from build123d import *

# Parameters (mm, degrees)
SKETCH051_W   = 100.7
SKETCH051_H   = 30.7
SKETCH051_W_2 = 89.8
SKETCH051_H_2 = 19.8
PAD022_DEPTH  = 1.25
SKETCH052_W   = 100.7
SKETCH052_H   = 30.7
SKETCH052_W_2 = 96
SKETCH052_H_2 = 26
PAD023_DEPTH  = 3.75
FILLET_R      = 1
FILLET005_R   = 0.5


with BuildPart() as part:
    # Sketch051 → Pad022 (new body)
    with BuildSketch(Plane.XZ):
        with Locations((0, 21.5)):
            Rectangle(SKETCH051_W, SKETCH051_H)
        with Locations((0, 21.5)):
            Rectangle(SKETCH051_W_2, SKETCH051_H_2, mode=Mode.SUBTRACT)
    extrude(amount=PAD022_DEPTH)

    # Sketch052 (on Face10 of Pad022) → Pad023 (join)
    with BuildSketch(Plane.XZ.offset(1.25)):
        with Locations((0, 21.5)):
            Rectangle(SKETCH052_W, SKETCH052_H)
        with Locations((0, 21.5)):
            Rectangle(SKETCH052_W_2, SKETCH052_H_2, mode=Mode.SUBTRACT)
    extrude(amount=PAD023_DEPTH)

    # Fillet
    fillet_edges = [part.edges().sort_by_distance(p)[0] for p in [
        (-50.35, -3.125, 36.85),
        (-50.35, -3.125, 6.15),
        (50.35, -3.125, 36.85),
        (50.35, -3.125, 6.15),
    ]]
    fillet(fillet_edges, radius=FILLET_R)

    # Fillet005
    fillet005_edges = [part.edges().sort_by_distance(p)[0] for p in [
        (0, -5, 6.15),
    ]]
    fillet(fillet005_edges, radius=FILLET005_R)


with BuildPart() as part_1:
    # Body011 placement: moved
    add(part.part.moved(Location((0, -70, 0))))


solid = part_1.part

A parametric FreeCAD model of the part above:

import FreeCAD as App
import Part
import Sketcher
from FreeCAD import Vector


def edges_at(feature, points):
    """Names of the edges that pass closest to the given points."""
    edges = feature.Shape.Edges
    near = lambda p: min(range(len(edges)), key=lambda i: edges[i].distToShape(Part.Vertex(*p))[0])
    return sorted({f"Edge{near(p) + 1}" for p in points})

doc = App.newDocument("Part")
params = doc.addObject("Spreadsheet::Sheet", "Params")
for row, (alias, value) in enumerate([
    ("sketch1_width", "100.7 mm"),
    ("sketch1_width2", "89.8 mm"),
    ("sketch1_height", "30.7 mm"),
    ("sketch1_height2", "19.8 mm"),
    ("pad1_length", "1.25 mm"),
    ("sketch2_width", "96 mm"),
    ("sketch2_height", "26 mm"),
    ("sketch2_width2", "100.7 mm"),
    ("sketch2_height2", "30.7 mm"),
    ("pad2_length", "3.75 mm"),
    ("fillet_radius", "1 mm"),
    ("fillet2_radius", "0.5 mm"),
], start=1):
    params.set(f"A{row}", alias)
    params.set(f"B{row}", "=" + value)
    params.setAlias(f"B{row}", alias)

body = doc.addObject("PartDesign::Body", "Body")

# Sketch on XZ plane
sketch1 = body.newObject("Sketcher::SketchObject", "Sketch")
sketch1.AttachmentSupport = (doc.getObject("XZ_Plane"), [""])
sketch1.MapMode = "FlatFace"
sketch1.addGeometry(Part.LineSegment(Vector(-50, 37, 0), Vector(-50, 6, 0)), False)
sketch1.addGeometry(Part.LineSegment(Vector(-50, 6, 0), Vector(50, 6, 0)), False)
sketch1.addGeometry(Part.LineSegment(Vector(50, 6, 0), Vector(50, 37, 0)), False)
sketch1.addGeometry(Part.LineSegment(Vector(50, 37, 0), Vector(-50, 37, 0)), False)
sketch1.addGeometry(Part.LineSegment(Vector(45, 12, 0), Vector(-45, 12, 0)), False)
sketch1.addGeometry(Part.LineSegment(Vector(-45, 12, 0), Vector(-45, 31, 0)), False)
sketch1.addGeometry(Part.LineSegment(Vector(-45, 31, 0), Vector(45, 31, 0)), False)
sketch1.addGeometry(Part.LineSegment(Vector(45, 31, 0), Vector(45, 12, 0)), False)
sketch1.addConstraint(Sketcher.Constraint("Coincident", 0, 2, 1, 1))
sketch1.addConstraint(Sketcher.Constraint("Coincident", 1, 2, 2, 1))
sketch1.addConstraint(Sketcher.Constraint("Coincident", 2, 2, 3, 1))
sketch1.addConstraint(Sketcher.Constraint("Coincident", 3, 2, 0, 1))
sketch1.addConstraint(Sketcher.Constraint("Coincident", 4, 2, 5, 1))
sketch1.addConstraint(Sketcher.Constraint("Coincident", 5, 2, 6, 1))
sketch1.addConstraint(Sketcher.Constraint("Coincident", 6, 2, 7, 1))
sketch1.addConstraint(Sketcher.Constraint("Coincident", 7, 2, 4, 1))
sketch1.addConstraint(Sketcher.Constraint("Vertical", 0))
sketch1.addConstraint(Sketcher.Constraint("Horizontal", 1))
sketch1.addConstraint(Sketcher.Constraint("Vertical", 2))
sketch1.addConstraint(Sketcher.Constraint("Horizontal", 3))
sketch1.addConstraint(Sketcher.Constraint("Horizontal", 4))
sketch1.addConstraint(Sketcher.Constraint("Vertical", 5))
sketch1.addConstraint(Sketcher.Constraint("Horizontal", 6))
sketch1.addConstraint(Sketcher.Constraint("Vertical", 7))
sketch1.addConstraint(Sketcher.Constraint("DistanceX", 1, 1, 1, 2, 100.7))
sketch1.addConstraint(Sketcher.Constraint("DistanceX", 4, 2, 4, 1, 89.8))
sketch1.addConstraint(Sketcher.Constraint("DistanceY", 0, 2, 0, 1, 30.7))
sketch1.addConstraint(Sketcher.Constraint("DistanceY", 5, 1, 5, 2, 19.8))
sketch1.addConstraint(Sketcher.Constraint("DistanceX", 4, 2, -1, 1, 44.9))
sketch1.addConstraint(Sketcher.Constraint("DistanceY", -1, 1, 4, 2, 11.6))
sketch1.addConstraint(Sketcher.Constraint("DistanceX", 0, 2, -1, 1, 50.35))
sketch1.addConstraint(Sketcher.Constraint("DistanceY", -1, 1, 0, 2, 6.15))
sketch1.setExpression("Constraints[16]", "Params.sketch1_width")
sketch1.setExpression("Constraints[17]", "Params.sketch1_width2")
sketch1.setExpression("Constraints[18]", "Params.sketch1_height")
sketch1.setExpression("Constraints[19]", "Params.sketch1_height2")
pad1 = body.newObject("PartDesign::Pad", "Pad")
pad1.Profile = sketch1
pad1.setExpression("Length", "Params.pad1_length")

# Sketch on XZ plane
sketch2 = body.newObject("Sketcher::SketchObject", "Sketch001")
sketch2.AttachmentSupport = (doc.getObject("XZ_Plane"), [""])
sketch2.MapMode = "FlatFace"
sketch2.AttachmentOffset = App.Placement(Vector(0, 0, 1.25), App.Rotation())
sketch2.addGeometry(Part.LineSegment(Vector(-50, 37, 0), Vector(-50, 6, 0)), False)
sketch2.addGeometry(Part.LineSegment(Vector(-50, 6, 0), Vector(50, 6, 0)), False)
sketch2.addGeometry(Part.LineSegment(Vector(50, 6, 0), Vector(50, 37, 0)), False)
sketch2.addGeometry(Part.LineSegment(Vector(50, 37, 0), Vector(-50, 37, 0)), False)
sketch2.addGeometry(Part.LineSegment(Vector(48, 8, 0), Vector(-48, 8, 0)), False)
sketch2.addGeometry(Part.LineSegment(Vector(-48, 8, 0), Vector(-48, 34, 0)), False)
sketch2.addGeometry(Part.LineSegment(Vector(-48, 34, 0), Vector(48, 34, 0)), False)
sketch2.addGeometry(Part.LineSegment(Vector(48, 34, 0), Vector(48, 8, 0)), False)
sketch2.addConstraint(Sketcher.Constraint("Coincident", 0, 2, 1, 1))
sketch2.addConstraint(Sketcher.Constraint("Coincident", 1, 2, 2, 1))
sketch2.addConstraint(Sketcher.Constraint("Coincident", 2, 2, 3, 1))
sketch2.addConstraint(Sketcher.Constraint("Coincident", 3, 2, 0, 1))
sketch2.addConstraint(Sketcher.Constraint("Coincident", 4, 2, 5, 1))
sketch2.addConstraint(Sketcher.Constraint("Coincident", 5, 2, 6, 1))
sketch2.addConstraint(Sketcher.Constraint("Coincident", 6, 2, 7, 1))
sketch2.addConstraint(Sketcher.Constraint("Coincident", 7, 2, 4, 1))
sketch2.addConstraint(Sketcher.Constraint("Vertical", 0))
sketch2.addConstraint(Sketcher.Constraint("Horizontal", 1))
sketch2.addConstraint(Sketcher.Constraint("Vertical", 2))
sketch2.addConstraint(Sketcher.Constraint("Horizontal", 3))
sketch2.addConstraint(Sketcher.Constraint("Horizontal", 4))
sketch2.addConstraint(Sketcher.Constraint("Vertical", 5))
sketch2.addConstraint(Sketcher.Constraint("Horizontal", 6))
sketch2.addConstraint(Sketcher.Constraint("Vertical", 7))
sketch2.addConstraint(Sketcher.Constraint("DistanceX", 4, 2, 4, 1, 96.0))
sketch2.addConstraint(Sketcher.Constraint("DistanceY", 5, 1, 5, 2, 26.0))
sketch2.addConstraint(Sketcher.Constraint("DistanceX", 1, 1, 1, 2, 100.7))
sketch2.addConstraint(Sketcher.Constraint("DistanceY", 0, 2, 0, 1, 30.7))
sketch2.addConstraint(Sketcher.Constraint("DistanceX", 4, 2, -1, 1, 48.0))
sketch2.addConstraint(Sketcher.Constraint("DistanceY", -1, 1, 4, 2, 8.5))
sketch2.addConstraint(Sketcher.Constraint("DistanceX", 0, 2, -1, 1, 50.35))
sketch2.addConstraint(Sketcher.Constraint("DistanceY", -1, 1, 0, 2, 6.15))
sketch2.setExpression("Constraints[16]", "Params.sketch2_width")
sketch2.setExpression("Constraints[17]", "Params.sketch2_height")
sketch2.setExpression("Constraints[18]", "Params.sketch2_width2")
sketch2.setExpression("Constraints[19]", "Params.sketch2_height2")
pad2 = body.newObject("PartDesign::Pad", "Pad001")
pad2.Profile = sketch2
pad2.setExpression("Length", "Params.pad2_length")
doc.recompute()

fillet = body.newObject("PartDesign::Fillet", "Fillet")
fillet.Base = (pad2, edges_at(pad2, [
    (-50.35, -2.5, 36.85),
    (-50.35, -2.5, 6.15),
    (50.35, -2.5, 36.85),
    (50.35, -2.5, 6.15),
]))
fillet.setExpression("Radius", "Params.fillet_radius")
doc.recompute()

fillet2 = body.newObject("PartDesign::Fillet", "Fillet001")
fillet2.Base = (fillet, edges_at(fillet, [(0, -5, 6.15)]))
fillet2.setExpression("Radius", "Params.fillet2_radius")
body2 = doc.addObject("PartDesign::Body", "Body001")
doc.recompute()

body.Placement = App.Placement(Vector(0, -70, 0), App.Rotation(Vector(0, 0, 1), 0))
boolean = body2.newObject("PartDesign::Boolean", "Boolean")
boolean.Type = "Fuse"
boolean.addObjects([body])

doc.recompute()
